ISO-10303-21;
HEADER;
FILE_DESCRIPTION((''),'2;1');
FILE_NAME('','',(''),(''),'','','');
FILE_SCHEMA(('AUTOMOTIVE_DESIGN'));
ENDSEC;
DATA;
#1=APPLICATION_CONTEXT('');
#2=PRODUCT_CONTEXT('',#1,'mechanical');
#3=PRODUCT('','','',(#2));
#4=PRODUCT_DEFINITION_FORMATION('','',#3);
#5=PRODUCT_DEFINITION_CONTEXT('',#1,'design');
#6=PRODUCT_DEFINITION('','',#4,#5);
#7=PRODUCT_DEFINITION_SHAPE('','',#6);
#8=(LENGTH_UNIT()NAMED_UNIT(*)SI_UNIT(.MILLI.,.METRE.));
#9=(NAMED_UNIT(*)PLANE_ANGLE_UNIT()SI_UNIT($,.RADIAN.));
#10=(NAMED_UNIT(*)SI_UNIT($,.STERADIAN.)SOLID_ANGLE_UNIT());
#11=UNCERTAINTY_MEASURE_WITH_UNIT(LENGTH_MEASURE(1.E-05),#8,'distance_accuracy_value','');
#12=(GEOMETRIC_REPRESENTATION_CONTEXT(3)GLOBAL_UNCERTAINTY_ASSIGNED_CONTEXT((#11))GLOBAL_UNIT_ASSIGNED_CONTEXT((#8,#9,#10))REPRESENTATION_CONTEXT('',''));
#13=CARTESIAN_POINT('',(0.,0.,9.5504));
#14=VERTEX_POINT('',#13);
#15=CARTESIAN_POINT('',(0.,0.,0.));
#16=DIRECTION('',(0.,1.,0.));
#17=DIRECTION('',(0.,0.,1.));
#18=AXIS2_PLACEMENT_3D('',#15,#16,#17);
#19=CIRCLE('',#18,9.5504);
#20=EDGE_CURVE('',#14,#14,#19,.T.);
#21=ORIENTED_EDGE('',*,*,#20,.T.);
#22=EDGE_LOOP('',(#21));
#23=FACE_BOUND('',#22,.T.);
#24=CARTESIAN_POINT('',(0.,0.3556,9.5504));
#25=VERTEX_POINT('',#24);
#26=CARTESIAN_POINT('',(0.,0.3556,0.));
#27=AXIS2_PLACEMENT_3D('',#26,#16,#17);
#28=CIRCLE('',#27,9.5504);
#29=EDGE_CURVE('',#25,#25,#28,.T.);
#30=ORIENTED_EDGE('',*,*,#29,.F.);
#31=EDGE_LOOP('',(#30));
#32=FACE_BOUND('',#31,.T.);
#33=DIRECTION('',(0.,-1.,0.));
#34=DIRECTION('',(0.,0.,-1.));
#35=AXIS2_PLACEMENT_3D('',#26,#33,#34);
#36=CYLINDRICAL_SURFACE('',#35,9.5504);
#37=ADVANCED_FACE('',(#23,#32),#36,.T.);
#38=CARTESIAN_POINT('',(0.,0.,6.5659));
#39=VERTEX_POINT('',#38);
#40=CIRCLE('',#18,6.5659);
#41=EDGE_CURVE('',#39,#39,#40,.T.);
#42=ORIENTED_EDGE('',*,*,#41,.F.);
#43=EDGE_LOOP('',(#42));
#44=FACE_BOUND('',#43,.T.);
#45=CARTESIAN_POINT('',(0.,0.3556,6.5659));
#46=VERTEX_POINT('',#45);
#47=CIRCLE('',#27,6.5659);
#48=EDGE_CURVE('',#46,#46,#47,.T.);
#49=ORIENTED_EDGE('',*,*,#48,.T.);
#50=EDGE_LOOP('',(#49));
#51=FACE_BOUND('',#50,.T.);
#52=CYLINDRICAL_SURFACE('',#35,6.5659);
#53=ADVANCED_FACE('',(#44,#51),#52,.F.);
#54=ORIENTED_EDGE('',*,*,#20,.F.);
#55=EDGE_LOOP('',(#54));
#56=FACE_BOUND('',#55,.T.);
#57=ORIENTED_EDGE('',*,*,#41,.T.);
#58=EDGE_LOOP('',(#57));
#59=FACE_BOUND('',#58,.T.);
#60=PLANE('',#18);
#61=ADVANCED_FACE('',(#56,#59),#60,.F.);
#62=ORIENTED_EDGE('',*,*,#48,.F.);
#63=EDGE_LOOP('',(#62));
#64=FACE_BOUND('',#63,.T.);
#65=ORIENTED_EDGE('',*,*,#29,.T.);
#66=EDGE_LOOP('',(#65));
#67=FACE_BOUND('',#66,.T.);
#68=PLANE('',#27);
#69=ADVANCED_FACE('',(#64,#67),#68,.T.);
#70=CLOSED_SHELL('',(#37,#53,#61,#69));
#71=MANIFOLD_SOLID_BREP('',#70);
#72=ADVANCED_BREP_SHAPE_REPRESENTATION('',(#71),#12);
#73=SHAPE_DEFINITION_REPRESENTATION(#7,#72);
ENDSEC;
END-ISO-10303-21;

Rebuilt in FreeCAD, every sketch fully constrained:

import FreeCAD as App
import Part
import Sketcher
Q = App.Units.Quantity

doc = App.newDocument("Part")
body = doc.addObject("PartDesign::Body", "Body")

# Sketch on XZ plane
sketch1 = body.newObject("Sketcher::SketchObject", "Sketch")
sketch1.AttachmentSupport = (doc.getObject("XZ_Plane"), [""])
sketch1.MapMode = "FlatFace"
sketch1.addGeometry(Part.Circle(App.Vector(0, 0, 0), App.Vector(0, 0, 1), 9.5504), False)
sketch1.addGeometry(Part.Circle(App.Vector(0, 0, 0), App.Vector(0, 0, 1), 6.5659), False)
sketch1.addConstraint(Sketcher.Constraint("Coincident", 0, 3, -1, 1))
sketch1.addConstraint(Sketcher.Constraint("Coincident", 1, 3, -1, 1))
sketch1.addConstraint(Sketcher.Constraint("Diameter", 0, Q("0.752 in")))
sketch1.addConstraint(Sketcher.Constraint("Diameter", 1, Q("0.517 in")))
pad1 = body.newObject("PartDesign::Pad", "Pad")
pad1.Profile = sketch1
pad1.Length = Q("0.014 in")
pad1.Reversed = True

doc.recompute()
